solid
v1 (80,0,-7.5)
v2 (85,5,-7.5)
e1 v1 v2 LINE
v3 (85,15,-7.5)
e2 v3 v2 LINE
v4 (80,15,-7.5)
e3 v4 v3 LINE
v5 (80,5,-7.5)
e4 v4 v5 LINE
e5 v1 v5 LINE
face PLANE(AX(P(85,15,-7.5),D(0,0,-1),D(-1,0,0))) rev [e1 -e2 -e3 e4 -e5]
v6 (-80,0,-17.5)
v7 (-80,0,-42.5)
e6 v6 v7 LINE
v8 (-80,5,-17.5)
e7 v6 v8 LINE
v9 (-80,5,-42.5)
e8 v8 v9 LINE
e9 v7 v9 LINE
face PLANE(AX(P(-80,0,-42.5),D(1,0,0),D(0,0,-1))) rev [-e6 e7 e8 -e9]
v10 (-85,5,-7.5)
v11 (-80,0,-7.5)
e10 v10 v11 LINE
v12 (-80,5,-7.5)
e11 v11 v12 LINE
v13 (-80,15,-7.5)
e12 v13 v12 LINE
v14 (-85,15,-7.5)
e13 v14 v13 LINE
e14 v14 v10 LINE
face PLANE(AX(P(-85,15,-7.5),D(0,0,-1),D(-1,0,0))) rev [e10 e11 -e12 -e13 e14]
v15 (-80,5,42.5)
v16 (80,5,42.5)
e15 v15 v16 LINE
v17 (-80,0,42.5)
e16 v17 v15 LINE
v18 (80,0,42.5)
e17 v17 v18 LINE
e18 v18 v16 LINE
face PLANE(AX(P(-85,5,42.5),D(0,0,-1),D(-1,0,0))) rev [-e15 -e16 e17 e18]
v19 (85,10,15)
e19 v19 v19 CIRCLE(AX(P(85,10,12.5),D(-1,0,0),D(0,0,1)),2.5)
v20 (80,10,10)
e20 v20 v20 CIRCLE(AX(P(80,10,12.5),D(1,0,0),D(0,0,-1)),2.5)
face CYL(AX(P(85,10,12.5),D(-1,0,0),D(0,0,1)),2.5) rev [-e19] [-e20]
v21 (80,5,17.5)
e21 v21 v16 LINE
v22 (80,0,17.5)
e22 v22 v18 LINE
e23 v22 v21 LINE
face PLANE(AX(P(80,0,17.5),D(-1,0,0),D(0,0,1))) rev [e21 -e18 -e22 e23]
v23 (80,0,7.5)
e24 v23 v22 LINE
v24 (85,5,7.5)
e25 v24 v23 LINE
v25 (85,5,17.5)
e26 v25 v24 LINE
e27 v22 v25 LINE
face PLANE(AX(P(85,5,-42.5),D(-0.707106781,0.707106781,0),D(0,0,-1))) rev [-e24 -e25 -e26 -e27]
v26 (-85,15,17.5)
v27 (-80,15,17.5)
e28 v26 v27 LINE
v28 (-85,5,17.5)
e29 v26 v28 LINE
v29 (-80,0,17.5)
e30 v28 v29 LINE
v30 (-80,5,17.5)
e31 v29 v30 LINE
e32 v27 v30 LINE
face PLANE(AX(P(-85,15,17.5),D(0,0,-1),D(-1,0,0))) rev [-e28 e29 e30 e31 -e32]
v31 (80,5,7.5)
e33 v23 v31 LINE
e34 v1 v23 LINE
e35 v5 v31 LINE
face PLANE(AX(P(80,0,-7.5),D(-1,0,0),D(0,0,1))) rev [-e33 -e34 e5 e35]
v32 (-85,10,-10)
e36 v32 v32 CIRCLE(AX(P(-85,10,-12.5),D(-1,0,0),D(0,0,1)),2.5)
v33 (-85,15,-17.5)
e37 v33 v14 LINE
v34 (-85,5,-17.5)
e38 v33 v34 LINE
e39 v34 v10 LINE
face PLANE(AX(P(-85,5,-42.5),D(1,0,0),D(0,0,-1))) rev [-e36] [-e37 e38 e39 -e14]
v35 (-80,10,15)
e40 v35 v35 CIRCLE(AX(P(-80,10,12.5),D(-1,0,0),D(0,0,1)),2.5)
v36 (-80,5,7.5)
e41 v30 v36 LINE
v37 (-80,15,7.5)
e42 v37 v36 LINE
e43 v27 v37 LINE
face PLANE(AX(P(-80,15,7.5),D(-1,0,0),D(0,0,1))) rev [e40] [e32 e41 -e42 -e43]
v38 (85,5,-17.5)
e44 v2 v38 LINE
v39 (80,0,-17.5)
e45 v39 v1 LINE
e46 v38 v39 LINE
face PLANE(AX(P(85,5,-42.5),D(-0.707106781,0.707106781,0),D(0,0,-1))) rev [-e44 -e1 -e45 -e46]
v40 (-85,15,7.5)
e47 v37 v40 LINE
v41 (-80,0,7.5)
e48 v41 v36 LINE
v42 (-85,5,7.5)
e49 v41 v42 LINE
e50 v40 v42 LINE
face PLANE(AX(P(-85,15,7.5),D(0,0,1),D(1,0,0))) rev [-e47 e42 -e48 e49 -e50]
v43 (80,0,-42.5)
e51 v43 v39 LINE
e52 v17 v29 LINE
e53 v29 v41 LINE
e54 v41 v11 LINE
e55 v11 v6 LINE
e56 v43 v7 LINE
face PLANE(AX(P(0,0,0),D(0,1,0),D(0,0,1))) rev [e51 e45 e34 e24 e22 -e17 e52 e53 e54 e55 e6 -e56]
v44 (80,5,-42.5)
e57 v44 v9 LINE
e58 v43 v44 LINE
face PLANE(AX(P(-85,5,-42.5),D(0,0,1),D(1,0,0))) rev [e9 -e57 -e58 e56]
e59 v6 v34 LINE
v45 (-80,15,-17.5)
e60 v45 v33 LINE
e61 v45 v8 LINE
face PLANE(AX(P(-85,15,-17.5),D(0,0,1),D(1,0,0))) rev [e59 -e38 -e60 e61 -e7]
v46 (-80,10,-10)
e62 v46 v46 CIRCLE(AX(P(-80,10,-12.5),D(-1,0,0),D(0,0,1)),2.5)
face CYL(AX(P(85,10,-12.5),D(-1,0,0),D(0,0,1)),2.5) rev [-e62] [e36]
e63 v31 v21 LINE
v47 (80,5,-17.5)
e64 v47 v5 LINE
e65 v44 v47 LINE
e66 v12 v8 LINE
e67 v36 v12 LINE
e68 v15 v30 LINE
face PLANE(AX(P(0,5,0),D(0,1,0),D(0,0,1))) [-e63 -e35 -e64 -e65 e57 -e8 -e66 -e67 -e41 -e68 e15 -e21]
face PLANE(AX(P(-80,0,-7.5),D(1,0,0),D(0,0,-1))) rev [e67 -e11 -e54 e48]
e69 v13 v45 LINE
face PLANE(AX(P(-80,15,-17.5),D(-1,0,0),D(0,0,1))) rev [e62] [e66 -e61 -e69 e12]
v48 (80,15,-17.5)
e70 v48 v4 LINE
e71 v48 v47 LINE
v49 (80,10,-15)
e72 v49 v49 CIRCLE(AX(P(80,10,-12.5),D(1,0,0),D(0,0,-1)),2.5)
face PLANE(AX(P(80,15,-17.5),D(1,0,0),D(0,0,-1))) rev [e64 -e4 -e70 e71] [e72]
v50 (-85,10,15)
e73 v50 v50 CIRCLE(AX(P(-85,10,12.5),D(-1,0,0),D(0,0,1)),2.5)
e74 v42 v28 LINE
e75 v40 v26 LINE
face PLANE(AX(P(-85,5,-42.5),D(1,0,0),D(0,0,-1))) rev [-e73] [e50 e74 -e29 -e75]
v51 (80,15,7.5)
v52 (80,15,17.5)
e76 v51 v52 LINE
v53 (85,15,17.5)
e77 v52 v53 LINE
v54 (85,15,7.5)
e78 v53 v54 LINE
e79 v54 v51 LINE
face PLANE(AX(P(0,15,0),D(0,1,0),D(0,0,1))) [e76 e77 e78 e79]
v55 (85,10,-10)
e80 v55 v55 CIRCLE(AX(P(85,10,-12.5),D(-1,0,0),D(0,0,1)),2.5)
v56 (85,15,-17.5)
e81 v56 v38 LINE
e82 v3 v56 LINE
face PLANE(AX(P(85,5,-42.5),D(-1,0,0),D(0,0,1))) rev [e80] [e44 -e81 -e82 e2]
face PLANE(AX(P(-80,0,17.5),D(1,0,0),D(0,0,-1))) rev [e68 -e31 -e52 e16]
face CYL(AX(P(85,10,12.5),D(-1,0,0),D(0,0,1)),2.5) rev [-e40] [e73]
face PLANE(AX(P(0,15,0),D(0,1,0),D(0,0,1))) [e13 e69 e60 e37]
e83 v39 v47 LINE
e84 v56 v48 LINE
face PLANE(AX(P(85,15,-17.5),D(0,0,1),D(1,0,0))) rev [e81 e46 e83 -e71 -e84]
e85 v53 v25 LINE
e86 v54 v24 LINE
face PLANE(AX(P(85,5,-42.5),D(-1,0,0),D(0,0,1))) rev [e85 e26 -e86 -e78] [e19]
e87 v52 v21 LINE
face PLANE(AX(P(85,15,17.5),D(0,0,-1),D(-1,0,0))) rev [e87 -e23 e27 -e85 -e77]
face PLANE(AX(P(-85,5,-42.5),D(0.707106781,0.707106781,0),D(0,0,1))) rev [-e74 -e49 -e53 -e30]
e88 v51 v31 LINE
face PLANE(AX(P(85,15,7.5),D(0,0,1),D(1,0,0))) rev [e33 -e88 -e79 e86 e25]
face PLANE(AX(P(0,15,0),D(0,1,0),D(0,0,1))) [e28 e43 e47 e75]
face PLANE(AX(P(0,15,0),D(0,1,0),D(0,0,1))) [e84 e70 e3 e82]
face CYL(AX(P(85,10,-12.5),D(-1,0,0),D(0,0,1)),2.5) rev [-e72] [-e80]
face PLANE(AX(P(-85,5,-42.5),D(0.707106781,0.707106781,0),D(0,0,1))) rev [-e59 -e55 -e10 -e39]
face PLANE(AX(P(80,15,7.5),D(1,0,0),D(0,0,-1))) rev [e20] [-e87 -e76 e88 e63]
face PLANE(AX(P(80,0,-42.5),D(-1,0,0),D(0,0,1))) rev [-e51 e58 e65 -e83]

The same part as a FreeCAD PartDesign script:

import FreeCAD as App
import Part
import Sketcher

V = App.Vector
Q = App.Units.Quantity


def edges_at(feature, points):
    """Names of the edges that pass closest to the given points."""
    edges = feature.Shape.Edges
    near = lambda p: min(range(len(edges)), key=lambda i: edges[i].distToShape(Part.Vertex(*p))[0])
    return sorted({f"Edge{near(p) + 1}" for p in points})

doc = App.newDocument("Part")
params = doc.addObject("Spreadsheet::Sheet", "Params")
for row, (alias, value) in enumerate([
    ("sketch1_width", "170 mm"),
    ("sketch1_height", "85 mm"),
    ("pad1_length", "5 mm"),
    ("sketch2_width", "5 mm"),
    ("sketch2_height", "10 mm"),
    ("pad2_length", "10 mm"),
    ("sketch3_diameter", "5 mm"),
    ("sketch4_width", "5 mm"),
    ("sketch4_height", "25 mm"),
    ("sketch4_height2", "15 mm"),
    ("chamfer_size", "5 mm"),
], start=1):
    params.set(f"A{row}", alias)
    params.set(f"B{row}", "=" + value)
    params.setAlias(f"B{row}", alias)

body = doc.addObject("PartDesign::Body", "Body")

# Sketch on XZ plane
sketch1 = body.newObject("Sketcher::SketchObject", "Sketch")
sketch1.AttachmentSupport = (doc.getObject("XZ_Plane"), [""])
sketch1.MapMode = "FlatFace"
sketch1.addGeometry([
    Part.LineSegment(V(-85, -42.5, 0), V(-85, 42.5, 0)),
    Part.LineSegment(V(-85, 42.5, 0), V(85, 42.5, 0)),
    Part.LineSegment(V(85, 42.5, 0), V(85, -42.5, 0)),
    Part.LineSegment(V(85, -42.5, 0), V(-85, -42.5, 0)),
], False)
sketch1.addConstraint([
    Sketcher.Constraint("Coincident", 0, 2, 1, 1),
    Sketcher.Constraint("Coincident", 1, 2, 2, 1),
    Sketcher.Constraint("Coincident", 2, 2, 3, 1),
    Sketcher.Constraint("Coincident", 3, 2, 0, 1),
    Sketcher.Constraint("Vertical", 0),
    Sketcher.Constraint("Horizontal", 1),
    Sketcher.Constraint("Vertical", 2),
    Sketcher.Constraint("Horizontal", 3),
    Sketcher.Constraint("Symmetric", 0, 2, 2, 2, -1, 1),
    Sketcher.Constraint("DistanceX", 1, 1, 1, 2, Q("170 mm")),
    Sketcher.Constraint("DistanceY", 0, 1, 0, 2, Q("85 mm")),
])
sketch1.setExpression("Constraints[9]", "Params.sketch1_width")
sketch1.setExpression("Constraints[10]", "Params.sketch1_height")
pad1 = body.newObject("PartDesign::Pad", "Pad")
pad1.Profile = sketch1
pad1.setExpression("Length", "Params.pad1_length")
pad1.Reversed = True

# Sketch on XZ plane
sketch2 = body.newObject("Sketcher::SketchObject", "Sketch001")
sketch2.AttachmentSupport = (doc.getObject("XZ_Plane"), [""])
sketch2.MapMode = "FlatFace"
sketch2.AttachmentOffset = App.Placement(V(0, 0, -5), App.Rotation())
sketch2.addGeometry([
    Part.LineSegment(V(-85, -17.5, 0), V(-85, -7.5, 0)),  # 0
    Part.LineSegment(V(-85, -7.5, 0), V(-80, -7.5, 0)),  # 1
    Part.LineSegment(V(-80, -7.5, 0), V(-80, -17.5, 0)),  # 2
    Part.LineSegment(V(-80, -17.5, 0), V(-85, -17.5, 0)),  # 3
    Part.LineSegment(V(-85, 7.5, 0), V(-85, 17.5, 0)),  # 4
    Part.LineSegment(V(-85, 17.5, 0), V(-80, 17.5, 0)),  # 5
    Part.LineSegment(V(-80, 17.5, 0), V(-80, 7.5, 0)),  # 6
    Part.LineSegment(V(-80, 7.5, 0), V(-85, 7.5, 0)),  # 7
    Part.LineSegment(V(80, 7.5, 0), V(80, 17.5, 0)),  # 8
    Part.LineSegment(V(80, 17.5, 0), V(85, 17.5, 0)),  # 9
    Part.LineSegment(V(85, 17.5, 0), V(85, 7.5, 0)),  # 10
    Part.LineSegment(V(85, 7.5, 0), V(80, 7.5, 0)),  # 11
    Part.LineSegment(V(80, -17.5, 0), V(80, -7.5, 0)),  # 12
    Part.LineSegment(V(80, -7.5, 0), V(85, -7.5, 0)),  # 13
    Part.LineSegment(V(85, -7.5, 0), V(85, -17.5, 0)),  # 14
    Part.LineSegment(V(85, -17.5, 0), V(80, -17.5, 0)),  # 15
], False)
sketch2.addConstraint([
    Sketcher.Constraint("Coincident", 0, 2, 1, 1),
    Sketcher.Constraint("Coincident", 1, 2, 2, 1),
    Sketcher.Constraint("Coincident", 2, 2, 3, 1),
    Sketcher.Constraint("Coincident", 3, 2, 0, 1),
    Sketcher.Constraint("Coincident", 4, 2, 5, 1),
    Sketcher.Constraint("Coincident", 5, 2, 6, 1),
    Sketcher.Constraint("Coincident", 6, 2, 7, 1),
    Sketcher.Constraint("Coincident", 7, 2, 4, 1),
    Sketcher.Constraint("Coincident", 8, 2, 9, 1),
    Sketcher.Constraint("Coincident", 9, 2, 10, 1),
    Sketcher.Constraint("Coincident", 10, 2, 11, 1),
    Sketcher.Constraint("Coincident", 11, 2, 8, 1),
    Sketcher.Constraint("Coincident", 12, 2, 13, 1),
    Sketcher.Constraint("Coincident", 13, 2, 14, 1),
    Sketcher.Constraint("Coincident", 14, 2, 15, 1),
    Sketcher.Constraint("Coincident", 15, 2, 12, 1),
    Sketcher.Constraint("Vertical", 0),
    Sketcher.Constraint("Horizontal", 1),
    Sketcher.Constraint("Vertical", 2),
    Sketcher.Constraint("Horizontal", 3),
    Sketcher.Constraint("Vertical", 4),
    Sketcher.Constraint("Horizontal", 5),
    Sketcher.Constraint("Vertical", 6),
    Sketcher.Constraint("Horizontal", 7),
    Sketcher.Constraint("Vertical", 8),
    Sketcher.Constraint("Horizontal", 9),
    Sketcher.Constraint("Vertical", 10),
    Sketcher.Constraint("Horizontal", 11),
    Sketcher.Constraint("Vertical", 12),
    Sketcher.Constraint("Horizontal", 13),
    Sketcher.Constraint("Vertical", 14),
    Sketcher.Constraint("Horizontal", 15),
    Sketcher.Constraint("Symmetric", 2, 2, 8, 2, -1, 1),
    Sketcher.Constraint("Symmetric", 0, 2, 10, 2, -1, 1),
    Sketcher.Constraint("Symmetric", 6, 2, 12, 2, -1, 1),
    Sketcher.Constraint("Symmetric", 4, 2, 14, 2, -1, 1),
    Sketcher.Constraint("Symmetric", 5, 2, 8, 2, -2),
    Sketcher.Constraint("Symmetric", 7, 2, 10, 2, -2),
    Sketcher.Constraint("DistanceX", 1, 1, 1, 2, Q("5 mm")),
    Sketcher.Constraint("DistanceY", 0, 1, 0, 2, Q("10 mm")),
    Sketcher.Constraint("DistanceX", 0, 2, -1, 1, Q("85 mm")),
    Sketcher.Constraint("DistanceY", 0, 2, 4, 2, Q("25 mm")),
])
sketch2.setExpression("Constraints[38]", "Params.sketch2_width")
sketch2.setExpression("Constraints[39]", "Params.sketch2_height")
pad2 = body.newObject("PartDesign::Pad", "Pad001")
pad2.Profile = sketch2
pad2.setExpression("Length", "Params.pad2_length")
pad2.Reversed = True

# Sketch on YZ plane
sketch3 = body.newObject("Sketcher::SketchObject", "Sketch002")
sketch3.AttachmentSupport = (doc.getObject("YZ_Plane"), [""])
sketch3.MapMode = "FlatFace"
sketch3.AttachmentOffset = App.Placement(V(0, 0, -85), App.Rotation())
sketch3.addGeometry([
    Part.Circle(V(10, -12.5, 0), V(0, 0, 1), 2.5),
    Part.Circle(V(10, 12.5, 0), V(0, 0, 1), 2.5),
], False)
sketch3.addConstraint([
    Sketcher.Constraint("Equal", 0, 1),
    Sketcher.Constraint("Symmetric", 0, 3, 1, 3, -1),
    Sketcher.Constraint("Diameter", 0, Q("5 mm")),
    Sketcher.Constraint("DistanceX", -1, 1, 0, 3, Q("10 mm")),
    Sketcher.Constraint("DistanceY", 0, 3, 1, 3, Q("25 mm")),
])
sketch3.setExpression("Constraints[2]", "Params.sketch3_diameter")
pocket1 = body.newObject("PartDesign::Pocket", "Pocket")
pocket1.Profile = sketch3
pocket1.Type = "ThroughAll"
pocket1.Reversed = True

# Sketch on XZ plane
sketch4 = body.newObject("Sketcher::SketchObject", "Sketch003")
sketch4.AttachmentSupport = (doc.getObject("XZ_Plane"), [""])
sketch4.MapMode = "FlatFace"
sketch4.AttachmentOffset = App.Placement(V(0, 0, -5), App.Rotation())
sketch4.addGeometry([
    Part.LineSegment(V(-85, -42.5, 0), V(-85, -17.5, 0)),  # 0
    Part.LineSegment(V(-85, -17.5, 0), V(-80, -17.5, 0)),  # 1
    Part.LineSegment(V(-80, -17.5, 0), V(-80, -42.5, 0)),  # 2
    Part.LineSegment(V(-80, -42.5, 0), V(-85, -42.5, 0)),  # 3
    Part.LineSegment(V(-85, 17.5, 0), V(-85, 42.5, 0)),  # 4
    Part.LineSegment(V(-85, 42.5, 0), V(-80, 42.5, 0)),  # 5
    Part.LineSegment(V(-80, 42.5, 0), V(-80, 17.5, 0)),  # 6
    Part.LineSegment(V(-80, 17.5, 0), V(-85, 17.5, 0)),  # 7
    Part.LineSegment(V(-85, -7.5, 0), V(-85, 7.5, 0)),  # 8
    Part.LineSegment(V(-85, 7.5, 0), V(-80, 7.5, 0)),  # 9
    Part.LineSegment(V(-80, 7.5, 0), V(-80, -7.5, 0)),  # 10
    Part.LineSegment(V(-80, -7.5, 0), V(-85, -7.5, 0)),  # 11
    Part.LineSegment(V(80, -7.5, 0), V(80, 7.5, 0)),  # 12
    Part.LineSegment(V(80, 7.5, 0), V(85, 7.5, 0)),  # 13
    Part.LineSegment(V(85, 7.5, 0), V(85, -7.5, 0)),  # 14
    Part.LineSegment(V(85, -7.5, 0), V(80, -7.5, 0)),  # 15
    Part.LineSegment(V(80, -42.5, 0), V(80, -17.5, 0)),  # 16
    Part.LineSegment(V(80, -17.5, 0), V(85, -17.5, 0)),  # 17
    Part.LineSegment(V(85, -17.5, 0), V(85, -42.5, 0)),  # 18
    Part.LineSegment(V(85, -42.5, 0), V(80, -42.5, 0)),  # 19
    Part.LineSegment(V(80, 17.5, 0), V(80, 42.5, 0)),  # 20
    Part.LineSegment(V(80, 42.5, 0), V(85, 42.5, 0)),  # 21
    Part.LineSegment(V(85, 42.5, 0), V(85, 17.5, 0)),  # 22
    Part.LineSegment(V(85, 17.5, 0), V(80, 17.5, 0)),  # 23
], False)
sketch4.addConstraint([
    Sketcher.Constraint("Coincident", 0, 2, 1, 1),
    Sketcher.Constraint("Coincident", 1, 2, 2, 1),
    Sketcher.Constraint("Coincident", 2, 2, 3, 1),
    Sketcher.Constraint("Coincident", 3, 2, 0, 1),
    Sketcher.Constraint("Coincident", 4, 2, 5, 1),
    Sketcher.Constraint("Coincident", 5, 2, 6, 1),
    Sketcher.Constraint("Coincident", 6, 2, 7, 1),
    Sketcher.Constraint("Coincident", 7, 2, 4, 1),
    Sketcher.Constraint("Coincident", 8, 2, 9, 1),
    Sketcher.Constraint("Coincident", 9, 2, 10, 1),
    Sketcher.Constraint("Coincident", 10, 2, 11, 1),
    Sketcher.Constraint("Coincident", 11, 2, 8, 1),
    Sketcher.Constraint("Coincident", 12, 2, 13, 1),
    Sketcher.Constraint("Coincident", 13, 2, 14, 1),
    Sketcher.Constraint("Coincident", 14, 2, 15, 1),
    Sketcher.Constraint("Coincident", 15, 2, 12, 1),
    Sketcher.Constraint("Coincident", 16, 2, 17, 1),
    Sketcher.Constraint("Coincident", 17, 2, 18, 1),
    Sketcher.Constraint("Coincident", 18, 2, 19, 1),
    Sketcher.Constraint("Coincident", 19, 2, 16, 1),
    Sketcher.Constraint("Coincident", 20, 2, 21, 1),
    Sketcher.Constraint("Coincident", 21, 2, 22, 1),
    Sketcher.Constraint("Coincident", 22, 2, 23, 1),
    Sketcher.Constraint("Coincident", 23, 2, 20, 1),
    Sketcher.Constraint("Vertical", 0),
    Sketcher.Constraint("Horizontal", 1),
    Sketcher.Constraint("Vertical", 2),
    Sketcher.Constraint("Horizontal", 3),
    Sketcher.Constraint("Vertical", 4),
    Sketcher.Constraint("Horizontal", 5),
    Sketcher.Constraint("Vertical", 6),
    Sketcher.Constraint("Horizontal", 7),
    Sketcher.Constraint("Vertical", 8),
    Sketcher.Constraint("Horizontal", 9),
    Sketcher.Constraint("Vertical", 10),
    Sketcher.Constraint("Horizontal", 11),
    Sketcher.Constraint("Vertical", 12),
    Sketcher.Constraint("Horizontal", 13),
    Sketcher.Constraint("Vertical", 14),
    Sketcher.Constraint("Horizontal", 15),
    Sketcher.Constraint("Vertical", 16),
    Sketcher.Constraint("Horizontal", 17),
    Sketcher.Constraint("Vertical", 18),
    Sketcher.Constraint("Horizontal", 19),
    Sketcher.Constraint("Vertical", 20),
    Sketcher.Constraint("Horizontal", 21),
    Sketcher.Constraint("Vertical", 22),
    Sketcher.Constraint("Horizontal", 23),
    Sketcher.Constraint("Symmetric", 10, 2, 12, 2, -1, 1),
    Sketcher.Constraint("Symmetric", 8, 2, 14, 2, -1, 1),
    Sketcher.Constraint("Symmetric", 6, 2, 16, 2, -1, 1),
    Sketcher.Constraint("Symmetric", 4, 2, 18, 2, -1, 1),
    Sketcher.Constraint("Symmetric", 2, 2, 20, 2, -1, 1),
    Sketcher.Constraint("Symmetric", 0, 2, 22, 2, -1, 1),
    Sketcher.Constraint("Symmetric", 1, 2, 16, 2, -2),
    Sketcher.Constraint("Symmetric", 3, 2, 18, 2, -2),
    Sketcher.Constraint("Horizontal", 9, 2, 12, 2),
    Sketcher.Constraint("Vertical", 7, 2, 8, 2),
    Sketcher.Constraint("Vertical", 6, 2, 9, 2),
    Sketcher.Constraint("DistanceX", 1, 1, 1, 2, Q("5 mm")),
    Sketcher.Constraint("DistanceY", 0, 1, 0, 2, Q("25 mm")),
    Sketcher.Constraint("DistanceY", 8, 1, 8, 2, Q("15 mm")),
    Sketcher.Constraint("DistanceX", 0, 2, -1, 1, Q("85 mm")),
    Sketcher.Constraint("DistanceY", 0, 2, 4, 2, Q("60 mm")),
])
sketch4.setExpression("Constraints[59]", "Params.sketch4_width")
sketch4.setExpression("Constraints[60]", "Params.sketch4_height")
sketch4.setExpression("Constraints[61]", "Params.sketch4_height2")
pocket2 = body.newObject("PartDesign::Pocket", "Pocket001")
pocket2.Profile = sketch4
pocket2.Type = "ThroughAll"
pocket2.Reversed = True
doc.recompute()

chamfer = body.newObject("PartDesign::Chamfer", "Chamfer")
chamfer.Base = (pocket2, edges_at(pocket2, [
    (85, 0, 12.5),
    (85, 0, -12.5),
    (-85, 0, 12.5),
    (-85, 0, -12.5),
]))
chamfer.setExpression("Size", "Params.chamfer_size")

doc.recompute()
